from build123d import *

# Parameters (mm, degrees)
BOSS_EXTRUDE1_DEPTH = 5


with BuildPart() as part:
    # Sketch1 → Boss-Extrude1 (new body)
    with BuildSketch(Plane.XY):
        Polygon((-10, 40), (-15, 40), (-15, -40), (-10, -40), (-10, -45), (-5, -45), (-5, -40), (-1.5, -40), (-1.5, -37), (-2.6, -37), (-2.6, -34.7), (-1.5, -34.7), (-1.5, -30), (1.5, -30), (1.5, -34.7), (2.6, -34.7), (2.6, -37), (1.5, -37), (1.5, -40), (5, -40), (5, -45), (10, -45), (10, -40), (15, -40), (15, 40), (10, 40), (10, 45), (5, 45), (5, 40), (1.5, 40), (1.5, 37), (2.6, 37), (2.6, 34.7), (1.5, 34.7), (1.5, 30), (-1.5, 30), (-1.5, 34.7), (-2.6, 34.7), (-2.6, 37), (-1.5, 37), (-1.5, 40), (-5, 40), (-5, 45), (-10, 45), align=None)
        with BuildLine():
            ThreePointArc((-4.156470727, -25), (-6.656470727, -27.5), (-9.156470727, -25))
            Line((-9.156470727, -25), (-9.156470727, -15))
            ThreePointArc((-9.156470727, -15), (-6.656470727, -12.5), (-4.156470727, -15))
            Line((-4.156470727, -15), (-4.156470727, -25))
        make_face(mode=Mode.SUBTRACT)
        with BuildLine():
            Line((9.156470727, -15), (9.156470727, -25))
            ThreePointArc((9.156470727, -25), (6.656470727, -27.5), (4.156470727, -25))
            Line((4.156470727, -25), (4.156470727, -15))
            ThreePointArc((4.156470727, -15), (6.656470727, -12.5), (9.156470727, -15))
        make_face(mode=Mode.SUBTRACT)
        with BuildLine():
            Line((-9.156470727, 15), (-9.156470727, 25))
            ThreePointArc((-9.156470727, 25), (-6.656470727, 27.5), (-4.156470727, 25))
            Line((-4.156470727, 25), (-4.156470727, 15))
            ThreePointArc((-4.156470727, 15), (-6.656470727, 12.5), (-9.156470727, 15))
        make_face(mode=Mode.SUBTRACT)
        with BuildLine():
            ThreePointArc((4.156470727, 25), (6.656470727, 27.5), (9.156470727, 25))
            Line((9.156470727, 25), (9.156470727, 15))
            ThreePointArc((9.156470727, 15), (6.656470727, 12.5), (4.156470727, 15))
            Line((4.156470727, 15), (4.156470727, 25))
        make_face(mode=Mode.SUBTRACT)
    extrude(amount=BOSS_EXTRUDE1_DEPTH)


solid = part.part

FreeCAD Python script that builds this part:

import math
import FreeCAD as App
import Part
import Sketcher
from FreeCAD import Vector
Q = App.Units.Quantity

doc = App.newDocument("Part")
body = doc.addObject("PartDesign::Body", "Body")

sketch1 = doc.addObject("Sketcher::SketchObject", "Sketch")
body.addObject(sketch1)
sketch1.AttachmentSupport = (doc.XY_Plane, [""])
sketch1.MapMode = "FlatFace"
sketch1.addGeometry(Part.LineSegment(Vector(-10, 40, 0), Vector(-15, 40, 0)), False)
sketch1.addGeometry(Part.LineSegment(Vector(-15, 40, 0), Vector(-15, -40, 0)), False)
sketch1.addGeometry(Part.LineSegment(Vector(-15, -40, 0), Vector(-10, -40, 0)), False)
sketch1.addGeometry(Part.LineSegment(Vector(-10, -40, 0), Vector(-10, -45, 0)), False)
sketch1.addGeometry(Part.LineSegment(Vector(-10, -45, 0), Vector(-5, -45, 0)), False)
sketch1.addGeometry(Part.LineSegment(Vector(-5, -45, 0), Vector(-5, -40, 0)), False)
sketch1.addGeometry(Part.LineSegment(Vector(-5, -40, 0), Vector(-1.5, -40, 0)), False)
sketch1.addGeometry(Part.LineSegment(Vector(-1.5, -40, 0), Vector(-1.5, -37, 0)), False)
sketch1.addGeometry(Part.LineSegment(Vector(-1.5, -37, 0), Vector(-2.6, -37, 0)), False)
sketch1.addGeometry(Part.LineSegment(Vector(-2.6, -37, 0), Vector(-2.6, -34.7, 0)), False)
sketch1.addGeometry(Part.LineSegment(Vector(-2.6, -34.7, 0), Vector(-1.5, -34.7, 0)), False)
sketch1.addGeometry(Part.LineSegment(Vector(-1.5, -34.7, 0), Vector(-1.5, -30, 0)), False)
sketch1.addGeometry(Part.LineSegment(Vector(-1.5, -30, 0), Vector(1.5, -30, 0)), False)
sketch1.addGeometry(Part.LineSegment(Vector(1.5, -30, 0), Vector(1.5, -34.7, 0)), False)
sketch1.addGeometry(Part.LineSegment(Vector(1.5, -34.7, 0), Vector(2.6, -34.7, 0)), False)
sketch1.addGeometry(Part.LineSegment(Vector(2.6, -34.7, 0), Vector(2.6, -37, 0)), False)
sketch1.addGeometry(Part.LineSegment(Vector(2.6, -37, 0), Vector(1.5, -37, 0)), False)
sketch1.addGeometry(Part.LineSegment(Vector(1.5, -37, 0), Vector(1.5, -40, 0)), False)
sketch1.addGeometry(Part.LineSegment(Vector(1.5, -40, 0), Vector(5, -40, 0)), False)
sketch1.addGeometry(Part.LineSegment(Vector(5, -40, 0), Vector(5, -45, 0)), False)
sketch1.addGeometry(Part.LineSegment(Vector(5, -45, 0), Vector(10, -45, 0)), False)
sketch1.addGeometry(Part.LineSegment(Vector(10, -45, 0), Vector(10, -40, 0)), False)
sketch1.addGeometry(Part.LineSegment(Vector(10, -40, 0), Vector(15, -40, 0)), False)
sketch1.addGeometry(Part.LineSegment(Vector(15, -40, 0), Vector(15, 40, 0)), False)
sketch1.addGeometry(Part.LineSegment(Vector(15, 40, 0), Vector(10, 40, 0)), False)
sketch1.addGeometry(Part.LineSegment(Vector(10, 40, 0), Vector(10, 45, 0)), False)
sketch1.addGeometry(Part.LineSegment(Vector(10, 45, 0), Vector(5, 45, 0)), False)
sketch1.addGeometry(Part.LineSegment(Vector(5, 45, 0), Vector(5, 40, 0)), False)
sketch1.addGeometry(Part.LineSegment(Vector(5, 40, 0), Vector(1.5, 40, 0)), False)
sketch1.addGeometry(Part.LineSegment(Vector(1.5, 40, 0), Vector(1.5, 37, 0)), False)
sketch1.addGeometry(Part.LineSegment(Vector(1.5, 37, 0), Vector(2.6, 37, 0)), False)
sketch1.addGeometry(Part.LineSegment(Vector(2.6, 37, 0), Vector(2.6, 34.7, 0)), False)
sketch1.addGeometry(Part.LineSegment(Vector(2.6, 34.7, 0), Vector(1.5, 34.7, 0)), False)
sketch1.addGeometry(Part.LineSegment(Vector(1.5, 34.7, 0), Vector(1.5, 30, 0)), False)
sketch1.addGeometry(Part.LineSegment(Vector(1.5, 30, 0), Vector(-1.5, 30, 0)), False)
sketch1.addGeometry(Part.LineSegment(Vector(-1.5, 30, 0), Vector(-1.5, 34.7, 0)), False)
sketch1.addGeometry(Part.LineSegment(Vector(-1.5, 34.7, 0), Vector(-2.6, 34.7, 0)), False)
sketch1.addGeometry(Part.LineSegment(Vector(-2.6, 34.7, 0), Vector(-2.6, 37, 0)), False)
sketch1.addGeometry(Part.LineSegment(Vector(-2.6, 37, 0), Vector(-1.5, 37, 0)), False)
sketch1.addGeometry(Part.LineSegment(Vector(-1.5, 37, 0), Vector(-1.5, 40, 0)), False)
sketch1.addGeometry(Part.LineSegment(Vector(-1.5, 40, 0), Vector(-5, 40, 0)), False)
sketch1.addGeometry(Part.LineSegment(Vector(-5, 40, 0), Vector(-5, 45, 0)), False)
sketch1.addGeometry(Part.LineSegment(Vector(-5, 45, 0), Vector(-10, 45, 0)), False)
sketch1.addGeometry(Part.LineSegment(Vector(-10, 45, 0), Vector(-10, 40, 0)), False)
sketch1.addGeometry(Part.LineSegment(Vector(-4.2, -15, 0), Vector(-4.2, -25, 0)), False)
sketch1.addGeometry(Part.ArcOfCircle(Part.Circle(Vector(-6.7, -25, 0), Vector(0, 0, 1), 2.5), math.radians(180), math.radians(360)), False)
sketch1.addGeometry(Part.LineSegment(Vector(-9.2, -25, 0), Vector(-9.2, -15, 0)), False)
sketch1.addGeometry(Part.ArcOfCircle(Part.Circle(Vector(-6.7, -15, 0), Vector(0, 0, 1), 2.5), math.radians(0), math.radians(180)), False)
sketch1.addGeometry(Part.ArcOfCircle(Part.Circle(Vector(6.7, -15, 0), Vector(0, 0, 1), 2.5), math.radians(0), math.radians(180)), False)
sketch1.addGeometry(Part.LineSegment(Vector(9.2, -15, 0), Vector(9.2, -25, 0)), False)
sketch1.addGeometry(Part.ArcOfCircle(Part.Circle(Vector(6.7, -25, 0), Vector(0, 0, 1), 2.5), math.radians(180), math.radians(360)), False)
sketch1.addGeometry(Part.LineSegment(Vector(4.2, -25, 0), Vector(4.2, -15, 0)), False)
sketch1.addGeometry(Part.ArcOfCircle(Part.Circle(Vector(-6.7, 15, 0), Vector(0, 0, 1), 2.5), math.radians(180), math.radians(360)), False)
sketch1.addGeometry(Part.LineSegment(Vector(-9.2, 15, 0), Vector(-9.2, 25, 0)), False)
sketch1.addGeometry(Part.ArcOfCircle(Part.Circle(Vector(-6.7, 25, 0), Vector(0, 0, 1), 2.5), math.radians(0), math.radians(180)), False)
sketch1.addGeometry(Part.LineSegment(Vector(-4.2, 25, 0), Vector(-4.2, 15, 0)), False)
sketch1.addGeometry(Part.LineSegment(Vector(4.2, 15, 0), Vector(4.2, 25, 0)), False)
sketch1.addGeometry(Part.ArcOfCircle(Part.Circle(Vector(6.7, 25, 0), Vector(0, 0, 1), 2.5), math.radians(0), math.radians(180)), False)
sketch1.addGeometry(Part.LineSegment(Vector(9.2, 25, 0), Vector(9.2, 15, 0)), False)
sketch1.addGeometry(Part.ArcOfCircle(Part.Circle(Vector(6.7, 15, 0), Vector(0, 0, 1), 2.5), math.radians(180), math.radians(360)), False)
sketch1.addConstraint(Sketcher.Constraint("Coincident", 0, 2, 1, 1))
sketch1.addConstraint(Sketcher.Constraint("Coincident", 1, 2, 2, 1))
sketch1.addConstraint(Sketcher.Constraint("Coincident", 2, 2, 3, 1))
sketch1.addConstraint(Sketcher.Constraint("Coincident", 3, 2, 4, 1))
sketch1.addConstraint(Sketcher.Constraint("Coincident", 4, 2, 5, 1))
sketch1.addConstraint(Sketcher.Constraint("Coincident", 5, 2, 6, 1))
sketch1.addConstraint(Sketcher.Constraint("Coincident", 6, 2, 7, 1))
sketch1.addConstraint(Sketcher.Constraint("Coincident", 7, 2, 8, 1))
sketch1.addConstraint(Sketcher.Constraint("Coincident", 8, 2, 9, 1))
sketch1.addConstraint(Sketcher.Constraint("Coincident", 9, 2, 10, 1))
sketch1.addConstraint(Sketcher.Constraint("Coincident", 10, 2, 11, 1))
sketch1.addConstraint(Sketcher.Constraint("Coincident", 11, 2, 12, 1))
sketch1.addConstraint(Sketcher.Constraint("Coincident", 12, 2, 13, 1))
sketch1.addConstraint(Sketcher.Constraint("Coincident", 13, 2, 14, 1))
sketch1.addConstraint(Sketcher.Constraint("Coincident", 14, 2, 15, 1))
sketch1.addConstraint(Sketcher.Constraint("Coincident", 15, 2, 16, 1))
sketch1.addConstraint(Sketcher.Constraint("Coincident", 16, 2, 17, 1))
sketch1.addConstraint(Sketcher.Constraint("Coincident", 17, 2, 18, 1))
sketch1.addConstraint(Sketcher.Constraint("Coincident", 18, 2, 19, 1))
sketch1.addConstraint(Sketcher.Constraint("Coincident", 19, 2, 20, 1))
sketch1.addConstraint(Sketcher.Constraint("Coincident", 20, 2, 21, 1))
sketch1.addConstraint(Sketcher.Constraint("Coincident", 21, 2, 22, 1))
sketch1.addConstraint(Sketcher.Constraint("Coincident", 22, 2, 23, 1))
sketch1.addConstraint(Sketcher.Constraint("Coincident", 23, 2, 24, 1))
sketch1.addConstraint(Sketcher.Constraint("Coincident", 24, 2, 25, 1))
sketch1.addConstraint(Sketcher.Constraint("Coincident", 25, 2, 26, 1))
sketch1.addConstraint(Sketcher.Constraint("Coincident", 26, 2, 27, 1))
sketch1.addConstraint(Sketcher.Constraint("Coincident", 27, 2, 28, 1))
sketch1.addConstraint(Sketcher.Constraint("Coincident", 28, 2, 29, 1))
sketch1.addConstraint(Sketcher.Constraint("Coincident", 29, 2, 30, 1))
sketch1.addConstraint(Sketcher.Constraint("Coincident", 30, 2, 31, 1))
sketch1.addConstraint(Sketcher.Constraint("Coincident", 31, 2, 32, 1))
sketch1.addConstraint(Sketcher.Constraint("Coincident", 32, 2, 33, 1))
sketch1.addConstraint(Sketcher.Constraint("Coincident", 33, 2, 34, 1))
sketch1.addConstraint(Sketcher.Constraint("Coincident", 34, 2, 35, 1))
sketch1.addConstraint(Sketcher.Constraint("Coincident", 35, 2, 36, 1))
sketch1.addConstraint(Sketcher.Constraint("Coincident", 36, 2, 37, 1))
sketch1.addConstraint(Sketcher.Constraint("Coincident", 37, 2, 38, 1))
sketch1.addConstraint(Sketcher.Constraint("Coincident", 38, 2, 39, 1))
sketch1.addConstraint(Sketcher.Constraint("Coincident", 39, 2, 40, 1))
sketch1.addConstraint(Sketcher.Constraint("Coincident", 40, 2, 41, 1))
sketch1.addConstraint(Sketcher.Constraint("Coincident", 41, 2, 42, 1))
sketch1.addConstraint(Sketcher.Constraint("Coincident", 42, 2, 43, 1))
sketch1.addConstraint(Sketcher.Constraint("Coincident", 43, 2, 0, 1))
sketch1.addConstraint(Sketcher.Constraint("Tangent", 44, 2, 45, 2))
sketch1.addConstraint(Sketcher.Constraint("Tangent", 45, 1, 46, 1))
sketch1.addConstraint(Sketcher.Constraint("Tangent", 46, 2, 47, 2))
sketch1.addConstraint(Sketcher.Constraint("Tangent", 47, 1, 44, 1))
sketch1.addConstraint(Sketcher.Constraint("Tangent", 48, 1, 49, 1))
sketch1.addConstraint(Sketcher.Constraint("Tangent", 49, 2, 50, 2))
sketch1.addConstraint(Sketcher.Constraint("Tangent", 50, 1, 51, 1))
sketch1.addConstraint(Sketcher.Constraint("Tangent", 51, 2, 48, 2))
sketch1.addConstraint(Sketcher.Constraint("Tangent", 52, 1, 53, 1))
sketch1.addConstraint(Sketcher.Constraint("Tangent", 53, 2, 54, 2))
sketch1.addConstraint(Sketcher.Constraint("Tangent", 54, 1, 55, 1))
sketch1.addConstraint(Sketcher.Constraint("Tangent", 55, 2, 52, 2))
sketch1.addConstraint(Sketcher.Constraint("Tangent", 56, 2, 57, 2))
sketch1.addConstraint(Sketcher.Constraint("Tangent", 57, 1, 58, 1))
sketch1.addConstraint(Sketcher.Constraint("Tangent", 58, 2, 59, 2))
sketch1.addConstraint(Sketcher.Constraint("Tangent", 59, 1, 56, 1))
sketch1.addConstraint(Sketcher.Constraint("Horizontal", 0))
sketch1.addConstraint(Sketcher.Constraint("Vertical", 1))
sketch1.addConstraint(Sketcher.Constraint("Horizontal", 2))
sketch1.addConstraint(Sketcher.Constraint("Vertical", 3))
sketch1.addConstraint(Sketcher.Constraint("Horizontal", 4))
sketch1.addConstraint(Sketcher.Constraint("Vertical", 5))
sketch1.addConstraint(Sketcher.Constraint("Horizontal", 6))
sketch1.addConstraint(Sketcher.Constraint("Vertical", 7))
sketch1.addConstraint(Sketcher.Constraint("Horizontal", 8))
sketch1.addConstraint(Sketcher.Constraint("Vertical", 9))
sketch1.addConstraint(Sketcher.Constraint("Horizontal", 10))
sketch1.addConstraint(Sketcher.Constraint("Vertical", 11))
sketch1.addConstraint(Sketcher.Constraint("Horizontal", 12))
sketch1.addConstraint(Sketcher.Constraint("Vertical", 13))
sketch1.addConstraint(Sketcher.Constraint("Horizontal", 14))
sketch1.addConstraint(Sketcher.Constraint("Vertical", 15))
sketch1.addConstraint(Sketcher.Constraint("Horizontal", 16))
sketch1.addConstraint(Sketcher.Constraint("Vertical", 17))
sketch1.addConstraint(Sketcher.Constraint("Horizontal", 18))
sketch1.addConstraint(Sketcher.Constraint("Vertical", 19))
sketch1.addConstraint(Sketcher.Constraint("Horizontal", 20))
sketch1.addConstraint(Sketcher.Constraint("Vertical", 21))
sketch1.addConstraint(Sketcher.Constraint("Horizontal", 22))
sketch1.addConstraint(Sketcher.Constraint("Vertical", 23))
sketch1.addConstraint(Sketcher.Constraint("Horizontal", 24))
sketch1.addConstraint(Sketcher.Constraint("Vertical", 25))
sketch1.addConstraint(Sketcher.Constraint("Horizontal", 26))
sketch1.addConstraint(Sketcher.Constraint("Vertical", 27))
sketch1.addConstraint(Sketcher.Constraint("Horizontal", 28))
sketch1.addConstraint(Sketcher.Constraint("Vertical", 29))
sketch1.addConstraint(Sketcher.Constraint("Horizontal", 30))
sketch1.addConstraint(Sketcher.Constraint("Vertical", 31))
sketch1.addConstraint(Sketcher.Constraint("Horizontal", 32))
sketch1.addConstraint(Sketcher.Constraint("Vertical", 33))
sketch1.addConstraint(Sketcher.Constraint("Horizontal", 34))
sketch1.addConstraint(Sketcher.Constraint("Vertical", 35))
sketch1.addConstraint(Sketcher.Constraint("Horizontal", 36))
sketch1.addConstraint(Sketcher.Constraint("Vertical", 37))
sketch1.addConstraint(Sketcher.Constraint("Horizontal", 38))
sketch1.addConstraint(Sketcher.Constraint("Vertical", 39))
sketch1.addConstraint(Sketcher.Constraint("Horizontal", 40))
sketch1.addConstraint(Sketcher.Constraint("Vertical", 41))
sketch1.addConstraint(Sketcher.Constraint("Horizontal", 42))
sketch1.addConstraint(Sketcher.Constraint("Vertical", 43))
sketch1.addConstraint(Sketcher.Constraint("Vertical", 44))
sketch1.addConstraint(Sketcher.Constraint("Vertical", 46))
sketch1.addConstraint(Sketcher.Constraint("Vertical", 49))
sketch1.addConstraint(Sketcher.Constraint("Vertical", 51))
sketch1.addConstraint(Sketcher.Constraint("Vertical", 53))
sketch1.addConstraint(Sketcher.Constraint("Vertical", 55))
sketch1.addConstraint(Sketcher.Constraint("Vertical", 56))
sketch1.addConstraint(Sketcher.Constraint("Vertical", 58))
sketch1.addConstraint(Sketcher.Constraint("Equal", 47, 48))
sketch1.addConstraint(Sketcher.Constraint("Equal", 50, 52))
sketch1.addConstraint(Sketcher.Constraint("Equal", 54, 57))
sketch1.addConstraint(Sketcher.Constraint("Symmetric", 48, 3, 52, 3, -1, 1))
sketch1.addConstraint(Sketcher.Constraint("Symmetric", 45, 3, 57, 3, -1, 1))
sketch1.addConstraint(Sketcher.Constraint("Symmetric", 0, 2, 22, 2, -1, 1))
sketch1.addConstraint(Sketcher.Constraint("Symmetric", 2, 2, 24, 2, -1, 1))
sketch1.addConstraint(Sketcher.Constraint("Symmetric", 4, 2, 26, 2, -1, 1))
sketch1.addConstraint(Sketcher.Constraint("Symmetric", 6, 2, 28, 2, -1, 1))
sketch1.addConstraint(Sketcher.Constraint("Symmetric", 8, 2, 30, 2, -1, 1))
sketch1.addConstraint(Sketcher.Constraint("Symmetric", 10, 2, 32, 2, -1, 1))
sketch1.addConstraint(Sketcher.Constraint("Symmetric", 12, 2, 34, 2, -1, 1))
sketch1.addConstraint(Sketcher.Constraint("Symmetric", 14, 2, 36, 2, -1, 1))
sketch1.addConstraint(Sketcher.Constraint("Symmetric", 16, 2, 38, 2, -1, 1))
sketch1.addConstraint(Sketcher.Constraint("Symmetric", 18, 2, 40, 2, -1, 1))
sketch1.addConstraint(Sketcher.Constraint("Symmetric", 20, 2, 42, 2, -1, 1))
sketch1.addConstraint(Sketcher.Constraint("Symmetric", 47, 3, 48, 3, -2))
sketch1.addConstraint(Sketcher.Constraint("Symmetric", 10, 2, 13, 2, -2))
sketch1.addConstraint(Sketcher.Constraint("Symmetric", 8, 2, 15, 2, -2))
sketch1.addConstraint(Sketcher.Constraint("Symmetric", 6, 2, 17, 2, -2))
sketch1.addConstraint(Sketcher.Constraint("Symmetric", 4, 2, 19, 2, -2))
sketch1.addConstraint(Sketcher.Constraint("Symmetric", 2, 2, 21, 2, -2))
sketch1.addConstraint(Sketcher.Constraint("Horizontal", 45, 3, 50, 3))
sketch1.addConstraint(Sketcher.Constraint("Horizontal", 54, 3, 57, 3))
sketch1.addConstraint(Sketcher.Constraint("Horizontal", 52, 3, 59, 3))
sketch1.addConstraint(Sketcher.Constraint("Horizontal", 2, 2, 5, 2))
sketch1.addConstraint(Sketcher.Constraint("Vertical", 7, 2, 10, 2))
sketch1.addConstraint(Sketcher.Constraint("Equal", 2, 4))
sketch1.addConstraint(Sketcher.Constraint("Equal", 42, 3))
sketch1.addConstraint(Sketcher.Constraint("Equal", 34, 7))
sketch1.addConstraint(Sketcher.Constraint("Radius", 45, Q("2.5 mm")))
sketch1.addConstraint(Sketcher.Constraint("DistanceX", 0, 2, 0, 1, Q("5 mm")))
sketch1.addConstraint(Sketcher.Constraint("DistanceX", 12, 1, 12, 2, Q("3 mm")))
sketch1.addConstraint(Sketcher.Constraint("DistanceY", 1, 2, 1, 1, Q("80 mm")))
sketch1.addConstraint(Sketcher.Constraint("DistanceY", 44, 2, 44, 1, Q("10 mm")))
sketch1.addConstraint(Sketcher.Constraint("DistanceX", 6, 1, 6, 2, Q("3.5 mm")))
sketch1.addConstraint(Sketcher.Constraint("DistanceX", 8, 2, 8, 1, Q("1.1 mm")))
sketch1.addConstraint(Sketcher.Constraint("DistanceY", 9, 1, 9, 2, Q("2.3 mm")))
sketch1.addConstraint(Sketcher.Constraint("DistanceY", 11, 1, 11, 2, Q("4.7 mm")))
sketch1.addConstraint(Sketcher.Constraint("DistanceY", 45, 3, -1, 1, Q("25 mm")))
sketch1.addConstraint(Sketcher.Constraint("DistanceX", 45, 3, -1, 1, Q("6.656471 mm")))
pad1 = doc.addObject("PartDesign::Pad", "Pad")
body.addObject(pad1)
pad1.Profile = sketch1
pad1.Length = 5

doc.recompute()
